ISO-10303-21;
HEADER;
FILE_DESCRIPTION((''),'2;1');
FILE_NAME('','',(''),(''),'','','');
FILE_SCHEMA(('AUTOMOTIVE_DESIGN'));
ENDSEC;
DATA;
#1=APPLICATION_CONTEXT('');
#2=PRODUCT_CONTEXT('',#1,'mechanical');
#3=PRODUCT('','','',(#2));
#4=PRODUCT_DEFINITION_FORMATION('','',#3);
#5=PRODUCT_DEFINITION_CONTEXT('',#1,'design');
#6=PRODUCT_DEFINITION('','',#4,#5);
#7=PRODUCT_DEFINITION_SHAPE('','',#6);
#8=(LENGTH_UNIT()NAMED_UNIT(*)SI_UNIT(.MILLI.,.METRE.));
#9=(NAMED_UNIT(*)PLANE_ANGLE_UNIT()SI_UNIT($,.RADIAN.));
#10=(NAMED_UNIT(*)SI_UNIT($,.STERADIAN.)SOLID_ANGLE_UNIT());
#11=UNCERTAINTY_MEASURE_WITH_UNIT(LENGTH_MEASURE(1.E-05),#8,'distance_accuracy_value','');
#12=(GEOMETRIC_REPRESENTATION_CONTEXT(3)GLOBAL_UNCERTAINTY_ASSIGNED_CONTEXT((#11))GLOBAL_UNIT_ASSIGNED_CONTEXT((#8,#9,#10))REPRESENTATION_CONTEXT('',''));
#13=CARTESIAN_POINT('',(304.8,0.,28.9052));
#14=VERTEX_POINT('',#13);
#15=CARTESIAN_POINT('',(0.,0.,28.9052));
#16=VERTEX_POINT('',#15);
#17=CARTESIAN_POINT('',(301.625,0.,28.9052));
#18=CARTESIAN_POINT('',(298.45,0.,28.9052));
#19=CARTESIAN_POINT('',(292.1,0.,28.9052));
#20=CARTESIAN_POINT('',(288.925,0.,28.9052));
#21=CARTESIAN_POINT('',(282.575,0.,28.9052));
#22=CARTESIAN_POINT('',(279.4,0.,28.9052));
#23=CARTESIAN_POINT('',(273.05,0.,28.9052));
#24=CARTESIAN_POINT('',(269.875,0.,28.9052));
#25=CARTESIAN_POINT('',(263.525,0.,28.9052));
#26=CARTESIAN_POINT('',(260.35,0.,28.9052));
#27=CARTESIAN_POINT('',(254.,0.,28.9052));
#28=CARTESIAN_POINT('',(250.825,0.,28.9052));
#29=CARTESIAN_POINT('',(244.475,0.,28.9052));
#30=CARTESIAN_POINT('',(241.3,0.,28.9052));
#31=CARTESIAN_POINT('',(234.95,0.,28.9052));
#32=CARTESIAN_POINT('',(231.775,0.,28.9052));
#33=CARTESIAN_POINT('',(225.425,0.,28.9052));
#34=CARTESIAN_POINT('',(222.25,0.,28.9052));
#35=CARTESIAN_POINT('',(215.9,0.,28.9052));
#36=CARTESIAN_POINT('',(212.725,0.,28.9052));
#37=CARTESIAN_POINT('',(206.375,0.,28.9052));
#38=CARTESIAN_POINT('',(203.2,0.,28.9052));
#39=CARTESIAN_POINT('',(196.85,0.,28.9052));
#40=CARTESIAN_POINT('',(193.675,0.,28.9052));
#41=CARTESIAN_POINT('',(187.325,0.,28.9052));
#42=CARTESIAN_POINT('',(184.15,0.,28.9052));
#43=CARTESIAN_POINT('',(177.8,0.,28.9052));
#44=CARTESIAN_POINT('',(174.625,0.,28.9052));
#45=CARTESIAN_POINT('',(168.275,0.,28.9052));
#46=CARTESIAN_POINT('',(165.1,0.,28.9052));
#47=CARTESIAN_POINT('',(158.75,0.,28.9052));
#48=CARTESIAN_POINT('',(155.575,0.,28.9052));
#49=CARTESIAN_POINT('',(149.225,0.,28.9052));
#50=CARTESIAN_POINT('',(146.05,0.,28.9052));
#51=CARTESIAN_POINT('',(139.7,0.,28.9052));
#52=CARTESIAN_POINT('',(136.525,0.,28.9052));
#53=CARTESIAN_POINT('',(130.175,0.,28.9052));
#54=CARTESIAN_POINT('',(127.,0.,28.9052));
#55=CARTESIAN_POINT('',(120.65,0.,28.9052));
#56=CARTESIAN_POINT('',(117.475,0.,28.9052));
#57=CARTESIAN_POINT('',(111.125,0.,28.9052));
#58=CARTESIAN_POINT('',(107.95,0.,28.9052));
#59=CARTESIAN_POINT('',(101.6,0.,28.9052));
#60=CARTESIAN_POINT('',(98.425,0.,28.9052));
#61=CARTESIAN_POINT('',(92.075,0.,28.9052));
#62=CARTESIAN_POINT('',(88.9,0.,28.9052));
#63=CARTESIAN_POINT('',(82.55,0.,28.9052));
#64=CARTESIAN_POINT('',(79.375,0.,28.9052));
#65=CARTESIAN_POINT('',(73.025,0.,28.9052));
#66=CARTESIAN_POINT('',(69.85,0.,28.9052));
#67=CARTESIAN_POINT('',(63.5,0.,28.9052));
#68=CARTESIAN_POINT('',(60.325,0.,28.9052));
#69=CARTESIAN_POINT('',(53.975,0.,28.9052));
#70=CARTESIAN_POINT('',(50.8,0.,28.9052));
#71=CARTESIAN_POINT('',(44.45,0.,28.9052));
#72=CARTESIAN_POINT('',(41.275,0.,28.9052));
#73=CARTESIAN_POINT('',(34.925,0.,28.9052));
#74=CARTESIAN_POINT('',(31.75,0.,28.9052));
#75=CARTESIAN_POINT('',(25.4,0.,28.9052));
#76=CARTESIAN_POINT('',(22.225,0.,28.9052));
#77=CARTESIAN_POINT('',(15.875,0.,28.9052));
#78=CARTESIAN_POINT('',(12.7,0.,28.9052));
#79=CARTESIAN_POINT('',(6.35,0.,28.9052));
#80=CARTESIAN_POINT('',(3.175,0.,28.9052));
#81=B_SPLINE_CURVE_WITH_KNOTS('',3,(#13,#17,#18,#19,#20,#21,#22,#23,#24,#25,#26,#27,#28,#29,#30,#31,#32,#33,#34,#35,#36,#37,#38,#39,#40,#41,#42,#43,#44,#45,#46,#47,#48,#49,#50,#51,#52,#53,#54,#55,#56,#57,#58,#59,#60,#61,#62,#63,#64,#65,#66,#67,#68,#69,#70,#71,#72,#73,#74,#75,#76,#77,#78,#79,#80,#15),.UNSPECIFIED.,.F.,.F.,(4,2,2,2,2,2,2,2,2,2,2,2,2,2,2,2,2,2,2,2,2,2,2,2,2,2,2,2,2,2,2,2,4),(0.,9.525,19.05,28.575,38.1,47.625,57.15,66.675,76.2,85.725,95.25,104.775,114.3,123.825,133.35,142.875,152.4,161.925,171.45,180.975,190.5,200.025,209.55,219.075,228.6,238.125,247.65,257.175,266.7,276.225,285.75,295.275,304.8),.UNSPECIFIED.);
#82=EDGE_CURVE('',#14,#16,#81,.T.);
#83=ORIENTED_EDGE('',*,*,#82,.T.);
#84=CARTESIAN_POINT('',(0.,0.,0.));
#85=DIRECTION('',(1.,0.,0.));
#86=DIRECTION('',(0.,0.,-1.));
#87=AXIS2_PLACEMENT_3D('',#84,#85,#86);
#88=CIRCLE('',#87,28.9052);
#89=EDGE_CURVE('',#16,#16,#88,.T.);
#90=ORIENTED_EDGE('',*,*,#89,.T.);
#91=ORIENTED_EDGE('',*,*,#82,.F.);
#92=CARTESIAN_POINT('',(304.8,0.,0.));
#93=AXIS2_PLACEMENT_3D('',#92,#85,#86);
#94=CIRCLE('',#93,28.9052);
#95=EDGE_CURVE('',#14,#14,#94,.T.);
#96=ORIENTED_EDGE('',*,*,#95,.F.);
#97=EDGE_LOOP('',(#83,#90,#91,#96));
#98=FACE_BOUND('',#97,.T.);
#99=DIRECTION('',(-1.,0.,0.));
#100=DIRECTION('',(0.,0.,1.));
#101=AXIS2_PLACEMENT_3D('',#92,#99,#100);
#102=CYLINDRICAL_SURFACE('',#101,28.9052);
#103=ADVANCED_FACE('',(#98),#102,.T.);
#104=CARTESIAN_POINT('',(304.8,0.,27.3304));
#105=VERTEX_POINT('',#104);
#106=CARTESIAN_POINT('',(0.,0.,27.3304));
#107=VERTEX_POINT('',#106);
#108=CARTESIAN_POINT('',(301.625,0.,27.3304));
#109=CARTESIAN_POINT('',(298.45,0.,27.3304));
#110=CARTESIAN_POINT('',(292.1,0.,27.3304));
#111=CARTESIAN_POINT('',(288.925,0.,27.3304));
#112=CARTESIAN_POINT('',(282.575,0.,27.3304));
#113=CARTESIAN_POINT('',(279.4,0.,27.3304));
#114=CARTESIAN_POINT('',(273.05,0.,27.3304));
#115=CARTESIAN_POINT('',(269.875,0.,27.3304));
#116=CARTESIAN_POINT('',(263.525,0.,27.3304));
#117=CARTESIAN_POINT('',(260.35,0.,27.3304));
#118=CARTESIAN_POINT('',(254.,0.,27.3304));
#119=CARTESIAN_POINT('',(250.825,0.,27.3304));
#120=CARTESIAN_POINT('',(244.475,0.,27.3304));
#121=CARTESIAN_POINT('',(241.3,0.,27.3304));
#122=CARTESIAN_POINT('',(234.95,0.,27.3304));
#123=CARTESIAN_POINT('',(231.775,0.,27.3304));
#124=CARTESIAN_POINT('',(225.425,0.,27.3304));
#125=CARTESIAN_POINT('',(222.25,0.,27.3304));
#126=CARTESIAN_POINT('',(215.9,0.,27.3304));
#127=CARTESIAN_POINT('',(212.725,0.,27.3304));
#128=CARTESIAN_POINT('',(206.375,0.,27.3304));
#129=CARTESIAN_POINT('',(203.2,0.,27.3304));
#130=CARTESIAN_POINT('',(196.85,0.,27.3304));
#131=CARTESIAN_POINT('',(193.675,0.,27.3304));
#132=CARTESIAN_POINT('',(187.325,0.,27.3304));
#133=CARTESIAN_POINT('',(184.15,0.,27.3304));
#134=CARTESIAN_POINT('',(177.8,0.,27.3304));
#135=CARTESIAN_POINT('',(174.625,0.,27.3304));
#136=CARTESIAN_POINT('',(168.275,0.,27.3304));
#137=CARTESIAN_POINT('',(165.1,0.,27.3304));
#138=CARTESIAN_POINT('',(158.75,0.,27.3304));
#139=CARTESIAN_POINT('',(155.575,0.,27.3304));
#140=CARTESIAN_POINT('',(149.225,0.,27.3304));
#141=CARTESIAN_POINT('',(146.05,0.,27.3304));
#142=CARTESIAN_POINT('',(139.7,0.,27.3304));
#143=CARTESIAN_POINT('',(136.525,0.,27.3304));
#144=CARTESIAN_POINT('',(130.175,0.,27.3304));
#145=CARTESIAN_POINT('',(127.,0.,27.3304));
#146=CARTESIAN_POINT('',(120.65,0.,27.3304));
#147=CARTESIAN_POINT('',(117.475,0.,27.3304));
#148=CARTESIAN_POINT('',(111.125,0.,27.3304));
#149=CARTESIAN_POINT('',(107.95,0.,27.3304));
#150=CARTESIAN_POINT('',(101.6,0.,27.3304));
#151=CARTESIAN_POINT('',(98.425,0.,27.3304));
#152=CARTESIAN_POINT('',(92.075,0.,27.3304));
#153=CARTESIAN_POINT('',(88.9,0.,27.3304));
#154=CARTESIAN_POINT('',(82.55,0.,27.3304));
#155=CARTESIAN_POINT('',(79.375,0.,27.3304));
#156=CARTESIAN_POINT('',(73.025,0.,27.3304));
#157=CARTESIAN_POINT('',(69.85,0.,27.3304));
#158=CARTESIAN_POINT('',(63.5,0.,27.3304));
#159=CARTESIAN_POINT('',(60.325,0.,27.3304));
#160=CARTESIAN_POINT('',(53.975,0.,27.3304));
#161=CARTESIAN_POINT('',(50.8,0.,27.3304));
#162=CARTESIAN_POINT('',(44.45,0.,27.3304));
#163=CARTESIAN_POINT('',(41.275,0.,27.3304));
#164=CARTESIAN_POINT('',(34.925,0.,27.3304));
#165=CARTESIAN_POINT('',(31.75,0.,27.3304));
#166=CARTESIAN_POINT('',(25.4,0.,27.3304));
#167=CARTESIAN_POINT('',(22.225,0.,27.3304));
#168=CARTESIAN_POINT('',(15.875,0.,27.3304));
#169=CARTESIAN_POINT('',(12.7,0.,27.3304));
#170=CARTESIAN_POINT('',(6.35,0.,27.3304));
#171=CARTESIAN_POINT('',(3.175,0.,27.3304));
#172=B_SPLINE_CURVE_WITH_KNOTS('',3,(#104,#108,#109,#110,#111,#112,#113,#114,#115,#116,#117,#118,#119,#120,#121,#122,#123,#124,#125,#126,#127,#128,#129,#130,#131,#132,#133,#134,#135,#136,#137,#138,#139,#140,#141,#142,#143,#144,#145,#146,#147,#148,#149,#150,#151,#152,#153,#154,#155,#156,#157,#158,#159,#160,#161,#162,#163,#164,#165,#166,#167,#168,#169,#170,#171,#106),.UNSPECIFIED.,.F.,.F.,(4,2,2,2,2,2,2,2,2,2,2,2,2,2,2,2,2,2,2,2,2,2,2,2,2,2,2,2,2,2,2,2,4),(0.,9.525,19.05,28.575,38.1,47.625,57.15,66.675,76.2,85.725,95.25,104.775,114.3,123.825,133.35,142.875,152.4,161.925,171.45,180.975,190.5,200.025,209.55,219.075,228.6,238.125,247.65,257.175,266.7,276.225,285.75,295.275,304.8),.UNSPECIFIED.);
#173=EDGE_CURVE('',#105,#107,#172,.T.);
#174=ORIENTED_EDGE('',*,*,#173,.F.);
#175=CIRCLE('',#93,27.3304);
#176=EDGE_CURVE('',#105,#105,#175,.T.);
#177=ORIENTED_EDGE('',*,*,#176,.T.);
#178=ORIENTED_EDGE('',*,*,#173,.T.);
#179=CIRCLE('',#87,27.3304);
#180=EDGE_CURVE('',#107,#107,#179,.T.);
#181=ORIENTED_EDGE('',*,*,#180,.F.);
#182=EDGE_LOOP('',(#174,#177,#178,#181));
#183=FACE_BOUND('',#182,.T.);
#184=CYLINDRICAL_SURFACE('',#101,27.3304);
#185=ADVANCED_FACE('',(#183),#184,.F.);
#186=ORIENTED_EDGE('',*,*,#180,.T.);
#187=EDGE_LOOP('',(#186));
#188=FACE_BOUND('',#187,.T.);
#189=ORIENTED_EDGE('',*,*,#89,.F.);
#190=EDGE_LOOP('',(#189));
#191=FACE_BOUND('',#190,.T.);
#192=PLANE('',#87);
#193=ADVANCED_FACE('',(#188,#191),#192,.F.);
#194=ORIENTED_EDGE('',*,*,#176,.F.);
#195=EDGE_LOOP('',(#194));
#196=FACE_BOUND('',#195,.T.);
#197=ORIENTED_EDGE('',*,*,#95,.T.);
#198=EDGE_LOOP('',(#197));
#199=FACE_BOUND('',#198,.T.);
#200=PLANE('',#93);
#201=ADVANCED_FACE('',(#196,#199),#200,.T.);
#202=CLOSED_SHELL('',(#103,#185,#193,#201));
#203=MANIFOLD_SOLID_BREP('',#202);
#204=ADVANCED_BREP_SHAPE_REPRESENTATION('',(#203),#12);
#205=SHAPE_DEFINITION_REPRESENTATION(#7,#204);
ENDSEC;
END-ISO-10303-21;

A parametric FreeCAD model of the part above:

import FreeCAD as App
import Part
import Sketcher

V = App.Vector
Q = App.Units.Quantity

doc = App.newDocument("Part")
body = doc.addObject("PartDesign::Body", "Body")

# Sketch on YZ plane
sketch1 = body.newObject("Sketcher::SketchObject", "Sketch")
sketch1.AttachmentSupport = (doc.getObject("YZ_Plane"), [""])
sketch1.MapMode = "FlatFace"
sketch1.addGeometry(Part.Circle(V(0, 0, 0), V(0, 0, 1), 29), False)
sketch1.addGeometry(Part.Circle(V(0, 0, 0), V(0, 0, 1), 27), False)
sketch1.addConstraint(Sketcher.Constraint("Coincident", 0, 3, -1, 1))
sketch1.addConstraint(Sketcher.Constraint("Coincident", 1, 3, -1, 1))
sketch1.addConstraint(Sketcher.Constraint("Diameter", 0, Q("2.276 in")))
sketch1.addConstraint(Sketcher.Constraint("Diameter", 1, Q("2.152 in")))
pad1 = body.newObject("PartDesign::Pad", "Pad")
pad1.Profile = sketch1
pad1.Length = Q("12 in")

doc.recompute()
